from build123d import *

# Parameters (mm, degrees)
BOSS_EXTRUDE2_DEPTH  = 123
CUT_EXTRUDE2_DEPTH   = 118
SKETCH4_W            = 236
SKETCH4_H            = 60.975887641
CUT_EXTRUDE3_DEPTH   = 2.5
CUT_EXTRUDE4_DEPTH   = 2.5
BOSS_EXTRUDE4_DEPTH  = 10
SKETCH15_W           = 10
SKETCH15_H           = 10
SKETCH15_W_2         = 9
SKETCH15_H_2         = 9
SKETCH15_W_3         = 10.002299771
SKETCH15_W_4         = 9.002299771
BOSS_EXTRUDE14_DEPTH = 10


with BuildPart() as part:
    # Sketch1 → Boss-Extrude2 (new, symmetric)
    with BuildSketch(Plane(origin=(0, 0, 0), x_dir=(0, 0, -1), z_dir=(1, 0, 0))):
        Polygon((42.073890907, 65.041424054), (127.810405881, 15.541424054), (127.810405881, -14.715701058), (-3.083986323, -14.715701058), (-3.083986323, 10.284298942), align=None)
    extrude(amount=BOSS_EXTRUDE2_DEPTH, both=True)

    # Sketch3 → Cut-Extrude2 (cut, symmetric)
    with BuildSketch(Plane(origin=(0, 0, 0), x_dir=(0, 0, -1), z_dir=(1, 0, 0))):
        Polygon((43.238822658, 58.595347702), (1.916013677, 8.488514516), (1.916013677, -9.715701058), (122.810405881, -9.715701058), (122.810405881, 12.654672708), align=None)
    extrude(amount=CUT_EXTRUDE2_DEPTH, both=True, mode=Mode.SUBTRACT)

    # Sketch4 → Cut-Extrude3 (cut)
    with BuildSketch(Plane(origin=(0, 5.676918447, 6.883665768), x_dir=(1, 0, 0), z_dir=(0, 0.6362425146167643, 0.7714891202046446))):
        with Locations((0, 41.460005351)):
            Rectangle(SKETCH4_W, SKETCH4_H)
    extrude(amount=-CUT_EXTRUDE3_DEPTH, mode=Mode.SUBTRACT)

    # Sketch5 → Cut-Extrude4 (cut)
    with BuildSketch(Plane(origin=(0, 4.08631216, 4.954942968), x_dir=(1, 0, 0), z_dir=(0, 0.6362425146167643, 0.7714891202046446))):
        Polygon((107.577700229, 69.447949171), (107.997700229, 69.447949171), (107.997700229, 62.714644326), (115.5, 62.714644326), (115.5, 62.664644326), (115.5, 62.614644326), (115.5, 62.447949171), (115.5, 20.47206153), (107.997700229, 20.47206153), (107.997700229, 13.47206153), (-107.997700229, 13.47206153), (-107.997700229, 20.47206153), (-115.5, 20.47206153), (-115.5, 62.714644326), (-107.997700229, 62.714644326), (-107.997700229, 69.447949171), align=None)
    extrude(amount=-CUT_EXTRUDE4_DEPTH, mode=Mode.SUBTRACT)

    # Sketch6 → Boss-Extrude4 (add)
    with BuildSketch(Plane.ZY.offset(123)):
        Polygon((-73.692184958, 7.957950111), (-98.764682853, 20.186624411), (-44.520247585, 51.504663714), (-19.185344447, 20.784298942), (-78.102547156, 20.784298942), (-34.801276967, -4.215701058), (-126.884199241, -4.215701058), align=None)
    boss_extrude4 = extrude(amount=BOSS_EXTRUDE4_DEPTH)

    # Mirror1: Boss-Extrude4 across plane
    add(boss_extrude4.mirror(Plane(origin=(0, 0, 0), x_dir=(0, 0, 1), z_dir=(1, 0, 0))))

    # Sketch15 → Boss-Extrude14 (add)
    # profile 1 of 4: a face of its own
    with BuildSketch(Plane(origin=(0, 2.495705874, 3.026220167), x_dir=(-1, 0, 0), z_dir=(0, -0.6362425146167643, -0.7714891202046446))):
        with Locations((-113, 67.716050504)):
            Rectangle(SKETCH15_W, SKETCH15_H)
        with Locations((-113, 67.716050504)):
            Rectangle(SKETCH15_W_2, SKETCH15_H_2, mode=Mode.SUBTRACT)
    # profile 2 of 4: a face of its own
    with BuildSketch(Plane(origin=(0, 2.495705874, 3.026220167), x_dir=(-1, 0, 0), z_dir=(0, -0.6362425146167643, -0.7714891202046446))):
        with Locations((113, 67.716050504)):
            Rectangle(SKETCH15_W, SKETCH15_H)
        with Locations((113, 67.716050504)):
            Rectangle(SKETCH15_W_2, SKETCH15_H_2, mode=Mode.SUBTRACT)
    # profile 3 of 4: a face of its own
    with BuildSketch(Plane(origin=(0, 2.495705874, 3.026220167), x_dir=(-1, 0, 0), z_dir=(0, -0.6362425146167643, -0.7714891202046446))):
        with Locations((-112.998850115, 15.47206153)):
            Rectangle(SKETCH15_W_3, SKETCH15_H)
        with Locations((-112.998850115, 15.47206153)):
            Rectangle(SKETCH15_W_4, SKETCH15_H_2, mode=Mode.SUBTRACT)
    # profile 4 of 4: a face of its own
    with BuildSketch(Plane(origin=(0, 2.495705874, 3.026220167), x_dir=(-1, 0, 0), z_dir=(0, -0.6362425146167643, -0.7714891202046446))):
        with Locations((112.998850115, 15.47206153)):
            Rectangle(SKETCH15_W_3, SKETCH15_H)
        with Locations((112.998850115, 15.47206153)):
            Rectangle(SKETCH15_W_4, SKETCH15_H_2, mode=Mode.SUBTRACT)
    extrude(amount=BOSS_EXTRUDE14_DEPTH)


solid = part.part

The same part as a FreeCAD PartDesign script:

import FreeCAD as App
import Part
import Sketcher
from FreeCAD import Vector
Q = App.Units.Quantity


def add_polygon(sketch, points):
    """Adds a closed chain of lines whose ends are joined by coincident constraints."""
    first, n = sketch.GeometryCount, len(points)
    for a, b in zip(points, points[1:] + points[:1]):
        sketch.addGeometry(Part.LineSegment(App.Vector(*a, 0), App.Vector(*b, 0)), False)
    for i in range(n):
        sketch.addConstraint(Sketcher.Constraint("Coincident", first + i, 2, first + (i + 1) % n, 1))

doc = App.newDocument("Part")
params = doc.addObject("Spreadsheet::Sheet", "Params")
for row, (alias, value) in enumerate([
    ("sketch1_width", "25 mm"),
    ("sketch1_length", "99 mm"),
    ("pad1_length", "246 mm"),
    ("pocket1_length", "236 mm"),
    ("sketch3_width", "236 mm"),
    ("pocket2_length", "2.5 mm"),
    ("sketch4_height", "7 mm"),
    ("pocket3_length", "2.5 mm"),
    ("sketch5_length", "50 mm"),
    ("pad2_length", "10 mm"),
    ("sketch6_width", "10 mm"),
    ("sketch6_width2", "9 mm"),
    ("pad3_length", "10 mm"),
], start=1):
    params.set(f"A{row}", alias)
    params.set(f"B{row}", "=" + value)
    params.setAlias(f"B{row}", alias)

body = doc.addObject("PartDesign::Body", "Body")

sketch1 = doc.addObject("Sketcher::SketchObject", "Sketch")
body.addObject(sketch1)
sketch1.AttachmentSupport = (doc.YZ_Plane, [""])
sketch1.MapMode = "FlatFace"
add_polygon(sketch1, [(15.541424, -127.810406), (65.041424, -42.073891), (10.284299, 3.083986), (-14.715701, 3.083986), (-14.715701, -127.810406)])
sketch1.addConstraint([
    Sketcher.Constraint("Horizontal", 2),
    Sketcher.Constraint("Vertical", 3),
    Sketcher.Constraint("Horizontal", 4),
    Sketcher.Constraint("DistanceX", 2, 2, 2, 1, Q("25 mm")),
    Sketcher.Constraint("Angle", 0, Q("60 deg")),
    Sketcher.Constraint("Distance", 0, Q("99 mm")),
    Sketcher.Constraint("DistanceX", -1, 1, 1, 2, Q("10.284299 mm")),
    Sketcher.Constraint("DistanceX", 4, 1, 4, 2, Q("30.257125 mm")),
    Sketcher.Constraint("DistanceY", 3, 2, 3, 1, Q("130.894392 mm")),
    Sketcher.Constraint("DistanceY", 0, 2, -1, 1, Q("42.073891 mm")),
])
sketch1.setExpression("Constraints[8]", "Params.sketch1_width")
sketch1.setExpression("Constraints[10]", "Params.sketch1_length")
pad1 = doc.addObject("PartDesign::Pad", "Pad")
body.addObject(pad1)
pad1.Profile = sketch1
pad1.setExpression("Length", "Params.pad1_length")
pad1.Midplane = True

sketch2 = doc.addObject("Sketcher::SketchObject", "Sketch001")
body.addObject(sketch2)
sketch2.AttachmentSupport = (doc.YZ_Plane, [""])
sketch2.MapMode = "FlatFace"
add_polygon(sketch2, [(58.595348, -43.238823), (8.488515, -1.916014), (-9.715701, -1.916014), (-9.715701, -122.810406), (12.654673, -122.810406)])
sketch2.addConstraint([
    Sketcher.Constraint("Horizontal", 1),
    Sketcher.Constraint("Vertical", 2),
    Sketcher.Constraint("Horizontal", 3),
    Sketcher.Constraint("Angle", 4, Q("60 deg")),
    Sketcher.Constraint("DistanceX", 1, 2, -1, 1, Q("9.715701 mm")),
    Sketcher.Constraint("Distance", 4, Q("91.88135 mm")),
    Sketcher.Constraint("DistanceX", 1, 2, 1, 1, Q("18.204216 mm")),
    Sketcher.Constraint("DistanceX", 3, 1, 3, 2, Q("22.370374 mm")),
    Sketcher.Constraint("DistanceY", 2, 2, 2, 1, Q("120.894392 mm")),
    Sketcher.Constraint("DistanceY", 0, 2, -1, 1, Q("1.916014 mm")),
])
pocket1 = doc.addObject("PartDesign::Pocket", "Pocket")
body.addObject(pocket1)
pocket1.Profile = sketch2
pocket1.setExpression("Length", "Params.pocket1_length")
pocket1.Midplane = True

sketch3 = doc.addObject("Sketcher::SketchObject", "Sketch002")
body.addObject(sketch3)
sketch3.Placement = App.Placement(Vector(0, 5.676918, 6.883666), App.Rotation(Vector(1, 0, 0), Vector(0, 0.77148912, -0.636242515), Vector(0, 0.636242515, 0.77148912), "ZXY"))
add_polygon(sketch3, [(-118, 71.947949), (-118, 10.972062), (118, 10.972062), (118, 71.947949)])
sketch3.addConstraint([
    Sketcher.Constraint("Vertical", 0),
    Sketcher.Constraint("Horizontal", 1),
    Sketcher.Constraint("Vertical", 2),
    Sketcher.Constraint("Horizontal", 3),
    Sketcher.Constraint("DistanceX", 1, 1, 1, 2, Q("236 mm")),
    Sketcher.Constraint("DistanceX", 0, 2, -1, 1, Q("118 mm")),
    Sketcher.Constraint("DistanceY", 0, 2, 0, 1, Q("60.975888 mm")),
    Sketcher.Constraint("DistanceY", -1, 1, 0, 2, Q("10.972062 mm")),
])
sketch3.setExpression("Constraints[8]", "Params.sketch3_width")
pocket2 = doc.addObject("PartDesign::Pocket", "Pocket001")
body.addObject(pocket2)
pocket2.Profile = sketch3
pocket2.setExpression("Length", "Params.pocket2_length")

sketch4 = doc.addObject("Sketcher::SketchObject", "Sketch003")
body.addObject(sketch4)
sketch4.Placement = App.Placement(Vector(0, 4.086312, 4.954943), App.Rotation(Vector(1, 0, 0), Vector(0, 0.77148912, -0.636242515), Vector(0, 0.636242515, 0.77148912), "ZXY"))
add_polygon(sketch4, [(107.9977, 69.447949), (-107.9977, 69.447949), (-107.9977, 62.714644), (-115.5, 62.714644), (-115.5, 20.472062), (-107.9977, 20.472062), (-107.9977, 13.472062), (107.9977, 13.472062), (107.9977, 20.472062), (115.5, 20.472062), (115.5, 62.714644), (107.9977, 62.714644)])
sketch4.addConstraint([
    Sketcher.Constraint("Horizontal", 0),
    Sketcher.Constraint("Vertical", 1),
    Sketcher.Constraint("Horizontal", 2),
    Sketcher.Constraint("Vertical", 3),
    Sketcher.Constraint("Horizontal", 4),
    Sketcher.Constraint("Vertical", 5),
    Sketcher.Constraint("Horizontal", 6),
    Sketcher.Constraint("Vertical", 7),
    Sketcher.Constraint("Horizontal", 8),
    Sketcher.Constraint("Vertical", 9),
    Sketcher.Constraint("Horizontal", 10),
    Sketcher.Constraint("Vertical", 11),
    Sketcher.Constraint("Symmetric", 4, 2, 7, 2, -2),
    Sketcher.Constraint("Symmetric", 2, 2, 9, 2, -2),
    Sketcher.Constraint("Vertical", 1, 2, 4, 2),
    Sketcher.Constraint("Vertical", 7, 2, 10, 2),
    Sketcher.Constraint("DistanceY", 5, 2, 5, 1, Q("7 mm")),
    Sketcher.Constraint("DistanceX", 2, 2, -1, 1, Q("115.5 mm")),
    Sketcher.Constraint("DistanceX", 0, 2, 0, 1, Q("215.9954 mm")),
    Sketcher.Constraint("DistanceY", 1, 2, 1, 1, Q("6.733305 mm")),
    Sketcher.Constraint("DistanceY", 3, 2, 3, 1, Q("42.242583 mm")),
    Sketcher.Constraint("DistanceY", -1, 1, 0, 2, Q("69.447949 mm")),
])
sketch4.setExpression("Constraints[28]", "Params.sketch4_height")
pocket3 = doc.addObject("PartDesign::Pocket", "Pocket002")
body.addObject(pocket3)
pocket3.Profile = sketch4
pocket3.setExpression("Length", "Params.pocket3_length")

sketch5 = doc.addObject("Sketcher::SketchObject", "Sketch004")
body.addObject(sketch5)
sketch5.AttachmentSupport = (doc.YZ_Plane, [""])
sketch5.MapMode = "FlatFace"
sketch5.AttachmentOffset = App.Placement(Vector(0, 0, -123), App.Rotation())
add_polygon(sketch5, [(20.186624, -98.764683), (7.95795, -73.692185), (-4.215701, -126.884199), (-4.215701, -34.801277), (20.784299, -78.102547), (20.784299, -19.185344), (51.504664, -44.520248)])
sketch5.addConstraint([
    Sketcher.Constraint("Vertical", 2),
    Sketcher.Constraint("Vertical", 4),
    Sketcher.Constraint("Angle", 0, Q("116 deg")),
    Sketcher.Constraint("Angle", 3, Q("-60 deg")),
    Sketcher.Constraint("Angle", 6, Q("-120 deg")),
    Sketcher.Constraint("Distance", 3, Q("50 mm")),
    Sketcher.Constraint("DistanceX", 1, 2, -1, 1, Q("4.215701 mm")),
    Sketcher.Constraint("DistanceY", 1, 2, -1, 1, Q("126.884199 mm")),
    Sketcher.Constraint("DistanceY", 3, 2, 5, 2, Q("33.5823 mm")),
    Sketcher.Constraint("Distance", 0, Q("27.89571 mm")),
    Sketcher.Constraint("Distance", 1, Q("54.567281 mm")),
    Sketcher.Constraint("Distance", 5, Q("39.81957 mm")),
    Sketcher.Constraint("Distance", 6, Q("62.636079 mm")),
    Sketcher.Constraint("DistanceY", 2, 1, 2, 2, Q("92.082922 mm")),
])
sketch5.setExpression("Constraints[12]", "Params.sketch5_length")
pad2 = doc.addObject("PartDesign::Pad", "Pad001")
body.addObject(pad2)
pad2.Profile = sketch5
pad2.setExpression("Length", "Params.pad2_length")
pad2.Reversed = True
doc.recompute()

mirrored = doc.addObject("PartDesign::Mirrored", "Mirrored")
body.addObject(mirrored)
mirrored.Originals = [pad2]
mirrored.MirrorPlane = (doc.YZ_Plane, [""])
body.Tip = mirrored

sketch6 = doc.addObject("Sketcher::SketchObject", "Sketch005")
body.addObject(sketch6)
sketch6.Placement = App.Placement(Vector(0, 2.495706, 3.02622), App.Rotation(Vector(-1, 0, 0), Vector(0, 0.77148912, -0.636242515), Vector(0, -0.636242515, -0.77148912), "ZXY"))
add_polygon(sketch6, [(-118, 72.716051), (-118, 62.716051), (-108, 62.716051), (-108, 72.716051)])
add_polygon(sketch6, [(-108.5, 63.216051), (-117.5, 63.216051), (-117.5, 72.216051), (-108.5, 72.216051)])
add_polygon(sketch6, [(108, 72.716051), (108, 62.716051), (118, 62.716051), (118, 72.716051)])
add_polygon(sketch6, [(117.5, 63.216051), (108.5, 63.216051), (108.5, 72.216051), (117.5, 72.216051)])
add_polygon(sketch6, [(-118, 20.472062), (-118, 10.472062), (-107.9977, 10.472062), (-107.9977, 20.472062)])
add_polygon(sketch6, [(-108.4977, 10.972062), (-117.5, 10.972062), (-117.5, 19.972062), (-108.4977, 19.972062)])
add_polygon(sketch6, [(107.9977, 20.472062), (107.9977, 10.472062), (118, 10.472062), (118, 20.472062)])
add_polygon(sketch6, [(117.5, 10.972062), (108.4977, 10.972062), (108.4977, 19.972062), (117.5, 19.972062)])
sketch6.addConstraint([
    Sketcher.Constraint("Vertical", 0),
    Sketcher.Constraint("Horizontal", 1),
    Sketcher.Constraint("Vertical", 2),
    Sketcher.Constraint("Horizontal", 3),
    Sketcher.Constraint("Horizontal", 4),
    Sketcher.Constraint("Vertical", 5),
    Sketcher.Constraint("Horizontal", 6),
    Sketcher.Constraint("Vertical", 7),
    Sketcher.Constraint("Vertical", 8),
    Sketcher.Constraint("Horizontal", 9),
    Sketcher.Constraint("Vertical", 10),
    Sketcher.Constraint("Horizontal", 11),
    Sketcher.Constraint("Horizontal", 12),
    Sketcher.Constraint("Vertical", 13),
    Sketcher.Constraint("Horizontal", 14),
    Sketcher.Constraint("Vertical", 15),
    Sketcher.Constraint("Vertical", 16),
    Sketcher.Constraint("Horizontal", 17),
    Sketcher.Constraint("Vertical", 18),
    Sketcher.Constraint("Horizontal", 19),
    Sketcher.Constraint("Horizontal", 20),
    Sketcher.Constraint("Vertical", 21),
    Sketcher.Constraint("Horizontal", 22),
    Sketcher.Constraint("Vertical", 23),
    Sketcher.Constraint("Vertical", 24),
    Sketcher.Constraint("Horizontal", 25),
    Sketcher.Constraint("Vertical", 26),
    Sketcher.Constraint("Horizontal", 27),
    Sketcher.Constraint("Horizontal", 28),
    Sketcher.Constraint("Vertical", 29),
    Sketcher.Constraint("Horizontal", 30),
    Sketcher.Constraint("Vertical", 31),
    Sketcher.Constraint("Symmetric", 1, 2, 8, 2, -2),
    Sketcher.Constraint("Symmetric", 3, 2, 10, 2, -2),
    Sketcher.Constraint("Symmetric", 7, 2, 12, 2, -2),
    Sketcher.Constraint("Symmetric", 5, 2, 14, 2, -2),
    Sketcher.Constraint("Symmetric", 17, 2, 24, 2, -2),
    Sketcher.Constraint("Symmetric", 19, 2, 26, 2, -2),
    Sketcher.Constraint("Symmetric", 23, 2, 28, 2, -2),
    Sketcher.Constraint("Symmetric", 21, 2, 30, 2, -2),
    Sketcher.Constraint("Vertical", 3, 2, 16, 2),
    Sketcher.Constraint("Vertical", 5, 2, 20, 2),
    Sketcher.Constraint("Equal", 11, 0),
    Sketcher.Constraint("Equal", 14, 5),
    Sketcher.Constraint("Equal", 10, 16),
    Sketcher.Constraint("Equal", 15, 21),
    Sketcher.Constraint("DistanceX", 1, 1, 1, 2, Q("10 mm")),
    Sketcher.Constraint("DistanceX", 4, 2, 4, 1, Q("9 mm")),
    Sketcher.Constraint("DistanceX", 0, 2, -1, 1, Q("118 mm")),
    Sketcher.Constraint("DistanceX", 4, 2, -1, 1, Q("117.5 mm")),
    Sketcher.Constraint("DistanceY", 0, 2, 4, 2, Q("0.5 mm")),
    Sketcher.Constraint("DistanceY", 16, 2, 20, 2, Q("0.5 mm")),
    Sketcher.Constraint("DistanceX", 22, 2, 18, 2, Q("0.5 mm")),
    Sketcher.Constraint("DistanceX", 17, 1, 17, 2, Q("10.0023 mm")),
    Sketcher.Constraint("DistanceY", -1, 1, 0, 2, Q("62.716051 mm")),
    Sketcher.Constraint("DistanceY", -1, 1, 16, 2, Q("10.472062 mm")),
])
sketch6.setExpression("Constraints[78]", "Params.sketch6_width")
sketch6.setExpression("Constraints[79]", "Params.sketch6_width2")
pad3 = doc.addObject("PartDesign::Pad", "Pad002")
body.addObject(pad3)
pad3.Profile = sketch6
pad3.setExpression("Length", "Params.pad3_length")

doc.recompute()
